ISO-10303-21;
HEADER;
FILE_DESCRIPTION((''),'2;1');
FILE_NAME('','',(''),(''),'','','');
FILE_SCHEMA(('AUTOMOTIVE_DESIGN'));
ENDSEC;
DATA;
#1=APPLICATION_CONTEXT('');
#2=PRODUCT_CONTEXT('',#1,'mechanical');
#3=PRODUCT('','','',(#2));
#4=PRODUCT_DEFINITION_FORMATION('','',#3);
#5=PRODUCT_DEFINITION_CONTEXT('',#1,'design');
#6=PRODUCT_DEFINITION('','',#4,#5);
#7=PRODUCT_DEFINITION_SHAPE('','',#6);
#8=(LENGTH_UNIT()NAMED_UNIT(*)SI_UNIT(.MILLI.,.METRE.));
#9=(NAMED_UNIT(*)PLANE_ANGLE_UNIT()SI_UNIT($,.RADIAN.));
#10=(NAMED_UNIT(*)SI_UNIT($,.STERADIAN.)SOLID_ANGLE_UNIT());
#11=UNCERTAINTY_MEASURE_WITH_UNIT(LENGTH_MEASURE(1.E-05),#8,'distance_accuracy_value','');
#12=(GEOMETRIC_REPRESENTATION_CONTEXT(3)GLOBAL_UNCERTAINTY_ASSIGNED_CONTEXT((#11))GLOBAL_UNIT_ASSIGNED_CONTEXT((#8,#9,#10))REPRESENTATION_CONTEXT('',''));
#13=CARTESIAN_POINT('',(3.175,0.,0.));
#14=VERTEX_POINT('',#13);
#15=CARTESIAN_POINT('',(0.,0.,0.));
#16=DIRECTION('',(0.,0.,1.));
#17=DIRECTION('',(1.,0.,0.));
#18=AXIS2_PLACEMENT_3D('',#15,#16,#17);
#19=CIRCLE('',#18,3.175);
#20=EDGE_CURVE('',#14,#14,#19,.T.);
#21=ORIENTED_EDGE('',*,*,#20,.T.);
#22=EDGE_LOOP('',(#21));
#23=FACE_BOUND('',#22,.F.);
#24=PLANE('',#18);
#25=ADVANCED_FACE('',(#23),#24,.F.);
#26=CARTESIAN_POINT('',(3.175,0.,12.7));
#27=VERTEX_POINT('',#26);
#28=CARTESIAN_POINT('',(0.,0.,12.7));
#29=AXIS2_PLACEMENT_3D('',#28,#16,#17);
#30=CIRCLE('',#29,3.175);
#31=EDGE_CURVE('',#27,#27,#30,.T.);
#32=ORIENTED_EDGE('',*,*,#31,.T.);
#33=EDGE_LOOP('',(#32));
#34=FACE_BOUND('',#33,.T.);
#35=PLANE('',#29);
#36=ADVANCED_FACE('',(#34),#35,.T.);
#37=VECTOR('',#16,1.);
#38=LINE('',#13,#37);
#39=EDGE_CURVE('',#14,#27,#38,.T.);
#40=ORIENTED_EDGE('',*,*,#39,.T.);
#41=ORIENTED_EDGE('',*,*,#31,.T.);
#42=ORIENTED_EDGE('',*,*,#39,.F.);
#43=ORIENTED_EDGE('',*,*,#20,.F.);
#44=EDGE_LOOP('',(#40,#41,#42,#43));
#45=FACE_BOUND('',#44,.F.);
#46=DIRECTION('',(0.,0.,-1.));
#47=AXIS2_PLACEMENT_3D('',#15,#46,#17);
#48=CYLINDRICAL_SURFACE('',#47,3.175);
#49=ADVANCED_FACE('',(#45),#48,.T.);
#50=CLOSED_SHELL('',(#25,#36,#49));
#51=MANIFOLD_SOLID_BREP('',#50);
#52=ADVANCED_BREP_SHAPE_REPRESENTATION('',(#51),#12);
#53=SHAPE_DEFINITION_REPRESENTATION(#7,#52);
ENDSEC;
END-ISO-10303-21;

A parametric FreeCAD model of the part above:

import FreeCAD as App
import Part
import Sketcher

V = App.Vector
Q = App.Units.Quantity

doc = App.newDocument("Part")
body = doc.addObject("PartDesign::Body", "Body")

# Sketch on XY plane
sketch1 = body.newObject("Sketcher::SketchObject", "Sketch")
sketch1.AttachmentSupport = (doc.getObject("XY_Plane"), [""])
sketch1.MapMode = "FlatFace"
sketch1.addGeometry(Part.Circle(V(0, 0, 0), V(0, 0, 1), 3.2), False)
sketch1.addConstraint([
    Sketcher.Constraint("Coincident", 0, 3, -1, 1),
    Sketcher.Constraint("Diameter", 0, Q("0.25 in")),
])
pad1 = body.newObject("PartDesign::Pad", "Pad")
pad1.Profile = sketch1
pad1.Length = Q("0.5 in")

doc.recompute()
